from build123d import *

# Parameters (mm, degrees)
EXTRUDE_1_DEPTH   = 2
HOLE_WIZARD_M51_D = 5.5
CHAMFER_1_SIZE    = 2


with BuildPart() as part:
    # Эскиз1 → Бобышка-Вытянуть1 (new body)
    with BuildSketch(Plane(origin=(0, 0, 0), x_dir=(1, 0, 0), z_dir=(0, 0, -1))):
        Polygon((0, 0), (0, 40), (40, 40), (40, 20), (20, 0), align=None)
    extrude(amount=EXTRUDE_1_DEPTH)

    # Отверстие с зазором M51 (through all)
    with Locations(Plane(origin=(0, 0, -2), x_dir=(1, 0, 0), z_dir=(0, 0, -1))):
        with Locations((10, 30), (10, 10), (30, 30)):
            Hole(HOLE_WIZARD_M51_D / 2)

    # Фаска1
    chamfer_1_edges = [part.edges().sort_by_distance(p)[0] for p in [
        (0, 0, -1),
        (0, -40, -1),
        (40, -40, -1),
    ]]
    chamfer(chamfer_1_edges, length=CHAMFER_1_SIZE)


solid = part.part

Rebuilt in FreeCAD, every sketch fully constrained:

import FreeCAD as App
import Part
import Sketcher
from FreeCAD import Vector


def edges_at(feature, points):
    """Names of the edges that pass closest to the given points."""
    edges = feature.Shape.Edges
    near = lambda p: min(range(len(edges)), key=lambda i: edges[i].distToShape(Part.Vertex(*p))[0])
    return sorted({f"Edge{near(p) + 1}" for p in points})


def add_polygon(sketch, points):
    """Adds a closed chain of lines whose ends are joined by coincident constraints."""
    first, n = sketch.GeometryCount, len(points)
    for a, b in zip(points, points[1:] + points[:1]):
        sketch.addGeometry(Part.LineSegment(App.Vector(*a, 0), App.Vector(*b, 0)), False)
    for i in range(n):
        sketch.addConstraint(Sketcher.Constraint("Coincident", first + i, 2, first + (i + 1) % n, 1))

doc = App.newDocument("Part")
body = doc.addObject("PartDesign::Body", "Body")

sketch1 = body.newObject("Sketcher::SketchObject", "Sketch")
sketch1.AttachmentSupport = (doc.getObject("XY_Plane"), [""])
sketch1.MapMode = "FlatFace"
add_polygon(sketch1, [(0, -40), (0, 0), (20, 0), (40, -20), (40, -40)])
sketch1.addConstraint([
    Sketcher.Constraint("Vertical", 0),
    Sketcher.Constraint("Horizontal", 1),
    Sketcher.Constraint("Vertical", 3),
    Sketcher.Constraint("Horizontal", 4),
    Sketcher.Constraint("Coincident", 0, 2, -1, 1),
    Sketcher.Constraint("Equal", 4, 0),
    Sketcher.Constraint("Equal", 1, 3),
    Sketcher.Constraint("DistanceX", 1, 1, 1, 2, 20.0),
    Sketcher.Constraint("DistanceX", 4, 2, 4, 1, 40.0),
])
pad1 = body.newObject("PartDesign::Pad", "Pad")
pad1.Profile = sketch1
pad1.Length = 2
pad1.Reversed = True

sketch2 = body.newObject("Sketcher::SketchObject", "Sketch001")
sketch2.AttachmentSupport = (doc.getObject("XY_Plane"), [""])
sketch2.MapMode = "FlatFace"
sketch2.AttachmentOffset = App.Placement(Vector(0, 0, -2), App.Rotation())
sketch2.addGeometry([
    Part.Circle(Vector(10, -30, 0), Vector(0, 0, 1), 2.8),
    Part.Circle(Vector(10, -10, 0), Vector(0, 0, 1), 2.8),
    Part.Circle(Vector(30, -30, 0), Vector(0, 0, 1), 2.8),
], False)
sketch2.addConstraint([
    Sketcher.Constraint("Equal", 0, 1),
    Sketcher.Constraint("Equal", 1, 2),
    Sketcher.Constraint("Horizontal", 0, 3, 2, 3),
    Sketcher.Constraint("Vertical", 0, 3, 1, 3),
    Sketcher.Constraint("Diameter", 0, 5.5),
    Sketcher.Constraint("DistanceX", -1, 1, 0, 3, 10.0),
    Sketcher.Constraint("DistanceY", 0, 3, -1, 1, 30.0),
    Sketcher.Constraint("DistanceY", 1, 3, -1, 1, 10.0),
    Sketcher.Constraint("DistanceX", -1, 1, 2, 3, 30.0),
])
doc.recompute()
hole = body.newObject("PartDesign::Hole", "Hole")
hole.Profile = sketch2
hole.ThreadType = "None"
hole.Diameter = 5.5
hole.DepthType = "ThroughAll"
hole.Reversed = True
doc.recompute()

chamfer = body.newObject("PartDesign::Chamfer", "Chamfer")
chamfer.Base = (hole, edges_at(hole, [(0, 0, -1), (0, -40, -1), (40, -40, -1)]))
chamfer.Size = 2

doc.recompute()
